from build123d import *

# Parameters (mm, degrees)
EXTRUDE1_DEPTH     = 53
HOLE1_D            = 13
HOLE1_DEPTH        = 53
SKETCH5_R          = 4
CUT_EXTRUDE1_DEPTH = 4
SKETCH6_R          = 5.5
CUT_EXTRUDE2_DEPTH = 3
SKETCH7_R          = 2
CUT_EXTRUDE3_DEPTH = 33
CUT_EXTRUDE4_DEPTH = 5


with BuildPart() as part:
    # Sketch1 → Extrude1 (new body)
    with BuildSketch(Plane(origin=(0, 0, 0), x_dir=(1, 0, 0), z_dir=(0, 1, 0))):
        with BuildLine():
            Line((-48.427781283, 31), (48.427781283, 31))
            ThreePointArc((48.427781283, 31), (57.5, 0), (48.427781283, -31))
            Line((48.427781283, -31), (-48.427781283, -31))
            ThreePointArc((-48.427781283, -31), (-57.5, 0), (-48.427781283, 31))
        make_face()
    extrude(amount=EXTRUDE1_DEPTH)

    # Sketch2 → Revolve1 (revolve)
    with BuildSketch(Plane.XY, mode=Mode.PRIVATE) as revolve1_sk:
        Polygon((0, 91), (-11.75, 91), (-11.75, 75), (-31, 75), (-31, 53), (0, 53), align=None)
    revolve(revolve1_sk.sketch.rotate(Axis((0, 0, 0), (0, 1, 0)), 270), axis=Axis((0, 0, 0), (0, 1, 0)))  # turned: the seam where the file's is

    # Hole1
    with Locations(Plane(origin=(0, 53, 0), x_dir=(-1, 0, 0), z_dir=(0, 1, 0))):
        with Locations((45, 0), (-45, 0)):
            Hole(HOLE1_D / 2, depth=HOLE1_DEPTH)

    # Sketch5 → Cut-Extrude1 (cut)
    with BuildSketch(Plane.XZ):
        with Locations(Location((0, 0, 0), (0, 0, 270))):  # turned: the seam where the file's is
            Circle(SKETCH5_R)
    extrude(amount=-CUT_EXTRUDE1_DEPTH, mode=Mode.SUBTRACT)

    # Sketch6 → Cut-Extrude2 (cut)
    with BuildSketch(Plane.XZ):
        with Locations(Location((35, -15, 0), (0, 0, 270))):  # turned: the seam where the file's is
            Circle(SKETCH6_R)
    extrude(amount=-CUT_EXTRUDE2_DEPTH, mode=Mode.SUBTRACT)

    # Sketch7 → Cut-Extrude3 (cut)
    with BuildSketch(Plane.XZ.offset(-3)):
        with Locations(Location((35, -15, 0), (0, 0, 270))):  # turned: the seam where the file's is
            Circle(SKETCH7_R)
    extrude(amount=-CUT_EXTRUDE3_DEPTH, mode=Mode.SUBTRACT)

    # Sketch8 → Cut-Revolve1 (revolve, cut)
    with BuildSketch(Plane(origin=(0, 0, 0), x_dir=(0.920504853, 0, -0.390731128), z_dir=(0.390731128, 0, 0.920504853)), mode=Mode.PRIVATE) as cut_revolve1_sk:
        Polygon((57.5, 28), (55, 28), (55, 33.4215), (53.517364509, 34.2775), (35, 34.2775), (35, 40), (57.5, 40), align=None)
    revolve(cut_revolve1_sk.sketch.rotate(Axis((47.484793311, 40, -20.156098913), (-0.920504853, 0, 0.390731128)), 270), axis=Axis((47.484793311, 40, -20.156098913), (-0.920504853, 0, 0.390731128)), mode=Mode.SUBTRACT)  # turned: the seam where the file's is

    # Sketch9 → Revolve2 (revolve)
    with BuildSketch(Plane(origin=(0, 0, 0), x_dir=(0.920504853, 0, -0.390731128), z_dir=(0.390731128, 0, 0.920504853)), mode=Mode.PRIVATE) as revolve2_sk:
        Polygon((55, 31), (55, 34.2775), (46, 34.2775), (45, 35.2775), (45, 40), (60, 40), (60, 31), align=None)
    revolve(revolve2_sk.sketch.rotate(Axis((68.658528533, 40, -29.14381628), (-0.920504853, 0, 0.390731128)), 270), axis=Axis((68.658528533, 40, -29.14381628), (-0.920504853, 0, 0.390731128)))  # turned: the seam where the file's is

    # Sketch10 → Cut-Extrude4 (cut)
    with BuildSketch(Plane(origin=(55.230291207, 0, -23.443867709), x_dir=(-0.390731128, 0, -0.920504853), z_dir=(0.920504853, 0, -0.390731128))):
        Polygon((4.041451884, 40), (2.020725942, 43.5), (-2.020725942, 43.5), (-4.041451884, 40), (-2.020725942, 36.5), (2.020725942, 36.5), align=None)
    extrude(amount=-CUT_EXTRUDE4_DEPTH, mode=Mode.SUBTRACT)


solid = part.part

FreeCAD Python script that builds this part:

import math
import FreeCAD as App
import Part
import Sketcher
Q = App.Units.Quantity


def add_polygon(sketch, points):
    """Adds a closed chain of lines whose ends are joined by coincident constraints."""
    first, n = sketch.GeometryCount, len(points)
    for a, b in zip(points, points[1:] + points[:1]):
        sketch.addGeometry(Part.LineSegment(App.Vector(*a, 0), App.Vector(*b, 0)), False)
    for i in range(n):
        sketch.addConstraint(Sketcher.Constraint("Coincident", first + i, 2, first + (i + 1) % n, 1))

doc = App.newDocument("Part")
params = doc.addObject("Spreadsheet::Sheet", "Params")
for row, (alias, value) in enumerate([
    ("sketch1_radius", "57.5 mm"),
    ("pad1_length", "53 mm"),
    ("sketch2_width", "31 mm"),
    ("sketch2_height", "16 mm"),
    ("sketch2_height2", "22 mm"),
    ("sketch2_width2", "11.75 mm"),
    ("revolution_angle", "360 deg"),
    ("sketch3_diameter", "13 mm"),
    ("hole_diameter", "13 mm"),
    ("hole_depth", "53 mm"),
    ("sketch4_diameter", "8 mm"),
    ("pocket1_length", "4 mm"),
    ("sketch5_diameter", "11 mm"),
    ("pocket2_length", "3 mm"),
    ("sketch6_diameter", "4 mm"),
    ("pocket3_length", "33 mm"),
    ("sketch7_height", "12 mm"),
    ("sketch7_width", "2.5 mm"),
    ("sketch7_width2", "22.5 mm"),
    ("groove_angle", "360 deg"),
    ("sketch8_width", "5 mm"),
    ("sketch8_width2", "15 mm"),
    ("sketch8_width3", "9 mm"),
    ("revolution2_angle", "360 deg"),
    ("pocket4_length", "5 mm"),
], start=1):
    params.set(f"A{row}", alias)
    params.set(f"B{row}", "=" + value)
    params.setAlias(f"B{row}", alias)

body = doc.addObject("PartDesign::Body", "Body")

# Sketch on XZ plane
sketch1 = body.newObject("Sketcher::SketchObject", "Sketch")
sketch1.AttachmentSupport = (doc.getObject("XZ_Plane"), [""])
sketch1.MapMode = "FlatFace"
sketch1.addGeometry(Part.LineSegment(App.Vector(48.427781, -31, 0), App.Vector(-48.427781, -31, 0)), False)
sketch1.addGeometry(Part.ArcOfCircle(Part.Circle(App.Vector(0, 0, 0), App.Vector(0, 0, 1), 57.5), math.radians(147.375537), math.radians(212.624463)), False)
sketch1.addGeometry(Part.LineSegment(App.Vector(-48.427781, 31, 0), App.Vector(48.427781, 31, 0)), False)
sketch1.addGeometry(Part.ArcOfCircle(Part.Circle(App.Vector(0, 0, 0), App.Vector(0, 0, 1), 57.5), math.radians(-32.624463), math.radians(32.624463)), False)
sketch1.addConstraint(Sketcher.Constraint("Coincident", 0, 2, 1, 2))
sketch1.addConstraint(Sketcher.Constraint("Coincident", 1, 1, 2, 1))
sketch1.addConstraint(Sketcher.Constraint("Coincident", 2, 2, 3, 2))
sketch1.addConstraint(Sketcher.Constraint("Coincident", 3, 1, 0, 1))
sketch1.addConstraint(Sketcher.Constraint("Horizontal", 0))
sketch1.addConstraint(Sketcher.Constraint("Horizontal", 2))
sketch1.addConstraint(Sketcher.Constraint("Coincident", 1, 3, -1, 1))
sketch1.addConstraint(Sketcher.Constraint("Coincident", 3, 3, -1, 1))
sketch1.addConstraint(Sketcher.Constraint("Equal", 1, 3))
sketch1.addConstraint(Sketcher.Constraint("Vertical", 0, 2, 1, 1))
sketch1.addConstraint(Sketcher.Constraint("Radius", 1, Q("57.5 mm")))
sketch1.addConstraint(Sketcher.Constraint("DistanceY", 0, 2, -1, 1, Q("31 mm")))
sketch1.setExpression("Constraints[10]", "Params.sketch1_radius")
pad1 = body.newObject("PartDesign::Pad", "Pad")
pad1.Profile = sketch1
pad1.setExpression("Length", "Params.pad1_length")
pad1.Reversed = True

# Sketch on XY plane
sketch2 = body.newObject("Sketcher::SketchObject", "Sketch001")
sketch2.AttachmentSupport = (doc.getObject("XY_Plane"), [""])
sketch2.MapMode = "FlatFace"
add_polygon(sketch2, [(0, 91), (-11.75, 91), (-11.75, 75), (-31, 75), (-31, 53), (0, 53)])  # lines 0-5
sketch2.addConstraint(Sketcher.Constraint("Horizontal", 0))
sketch2.addConstraint(Sketcher.Constraint("Vertical", 1))
sketch2.addConstraint(Sketcher.Constraint("Horizontal", 2))
sketch2.addConstraint(Sketcher.Constraint("Vertical", 3))
sketch2.addConstraint(Sketcher.Constraint("Horizontal", 4))
sketch2.addConstraint(Sketcher.Constraint("Vertical", 5))
sketch2.addConstraint(Sketcher.Constraint("PointOnObject", 4, 2, -2))
sketch2.addConstraint(Sketcher.Constraint("DistanceX", 4, 1, 4, 2, Q("31 mm")))
sketch2.addConstraint(Sketcher.Constraint("DistanceY", 1, 2, 1, 1, Q("16 mm")))
sketch2.addConstraint(Sketcher.Constraint("DistanceY", 3, 2, 3, 1, Q("22 mm")))
sketch2.addConstraint(Sketcher.Constraint("DistanceY", -1, 1, 0, 2, Q("91 mm")))
sketch2.addConstraint(Sketcher.Constraint("DistanceX", 0, 2, 0, 1, Q("11.75 mm")))
sketch2.setExpression("Constraints[13]", "Params.sketch2_width")
sketch2.setExpression("Constraints[14]", "Params.sketch2_height")
sketch2.setExpression("Constraints[15]", "Params.sketch2_height2")
sketch2.setExpression("Constraints[17]", "Params.sketch2_width2")
revolution = body.newObject("PartDesign::Revolution", "Revolution")
revolution.Profile = sketch2
revolution.ReferenceAxis = (sketch2, ["V_Axis"])
revolution.setExpression("Angle", "Params.revolution_angle")

# Sketch on XZ plane
sketch3 = body.newObject("Sketcher::SketchObject", "Sketch002")
sketch3.AttachmentSupport = (doc.getObject("XZ_Plane"), [""])
sketch3.MapMode = "FlatFace"
sketch3.AttachmentOffset = App.Placement(App.Vector(0, 0, -53), App.Rotation())
sketch3.addGeometry(Part.Circle(App.Vector(-45, 0, 0), App.Vector(0, 0, 1), 6.5), False)
sketch3.addGeometry(Part.Circle(App.Vector(45, 0, 0), App.Vector(0, 0, 1), 6.5), False)
sketch3.addConstraint(Sketcher.Constraint("Equal", 0, 1))
sketch3.addConstraint(Sketcher.Constraint("Symmetric", 0, 3, 1, 3, -1, 1))
sketch3.addConstraint(Sketcher.Constraint("PointOnObject", 0, 3, -1))
sketch3.addConstraint(Sketcher.Constraint("Diameter", 0, Q("13 mm")))
sketch3.addConstraint(Sketcher.Constraint("DistanceX", 0, 3, -1, 1, Q("45 mm")))
sketch3.setExpression("Constraints[3]", "Params.sketch3_diameter")
doc.recompute()
hole = body.newObject("PartDesign::Hole", "Hole")
hole.Profile = sketch3
hole.ThreadType = "None"
hole.setExpression("Diameter", "Params.hole_diameter")
hole.DepthType = "Dimension"
hole.setExpression("Depth", "Params.hole_depth")
hole.DrillPoint = "Flat"
hole.Reversed = True

# Sketch on XZ plane
sketch4 = body.newObject("Sketcher::SketchObject", "Sketch003")
sketch4.AttachmentSupport = (doc.getObject("XZ_Plane"), [""])
sketch4.MapMode = "FlatFace"
sketch4.addGeometry(Part.Circle(App.Vector(0, 0, 0), App.Vector(0, 0, 1), 4), False)
sketch4.addConstraint(Sketcher.Constraint("Coincident", 0, 3, -1, 1))
sketch4.addConstraint(Sketcher.Constraint("Diameter", 0, Q("8 mm")))
sketch4.setExpression("Constraints[1]", "Params.sketch4_diameter")
pocket1 = body.newObject("PartDesign::Pocket", "Pocket")
pocket1.Profile = sketch4
pocket1.setExpression("Length", "Params.pocket1_length")

# Sketch on XZ plane
sketch5 = body.newObject("Sketcher::SketchObject", "Sketch004")
sketch5.AttachmentSupport = (doc.getObject("XZ_Plane"), [""])
sketch5.MapMode = "FlatFace"
sketch5.addGeometry(Part.Circle(App.Vector(35, -15, 0), App.Vector(0, 0, 1), 5.5), False)
sketch5.addConstraint(Sketcher.Constraint("Diameter", 0, Q("11 mm")))
sketch5.addConstraint(Sketcher.Constraint("DistanceX", -1, 1, 0, 3, Q("35 mm")))
sketch5.addConstraint(Sketcher.Constraint("DistanceY", 0, 3, -1, 1, Q("15 mm")))
sketch5.setExpression("Constraints[0]", "Params.sketch5_diameter")
pocket2 = body.newObject("PartDesign::Pocket", "Pocket001")
pocket2.Profile = sketch5
pocket2.setExpression("Length", "Params.pocket2_length")

# Sketch on XZ plane
sketch6 = body.newObject("Sketcher::SketchObject", "Sketch005")
sketch6.AttachmentSupport = (doc.getObject("XZ_Plane"), [""])
sketch6.MapMode = "FlatFace"
sketch6.AttachmentOffset = App.Placement(App.Vector(0, 0, -3), App.Rotation())
sketch6.addGeometry(Part.Circle(App.Vector(35, -15, 0), App.Vector(0, 0, 1), 2), False)
sketch6.addConstraint(Sketcher.Constraint("Diameter", 0, Q("4 mm")))
sketch6.addConstraint(Sketcher.Constraint("DistanceX", -1, 1, 0, 3, Q("35 mm")))
sketch6.addConstraint(Sketcher.Constraint("DistanceY", 0, 3, -1, 1, Q("15 mm")))
sketch6.setExpression("Constraints[0]", "Params.sketch6_diameter")
pocket3 = body.newObject("PartDesign::Pocket", "Pocket002")
pocket3.Profile = sketch6
pocket3.setExpression("Length", "Params.pocket3_length")

# Sketch on an angled plane
sketch7 = body.newObject("Sketcher::SketchObject", "Sketch006")
sketch7.Placement = App.Placement(App.Vector(0, 0, 0), App.Rotation(App.Vector(0.920504854, 0, -0.390731128), App.Vector(0, 1.000000001, 0), App.Vector(0.390731128, 0, 0.920504854), "ZXY"))
add_polygon(sketch7, [(55, 28), (57.5, 28), (57.5, 40), (35, 40), (35, 34.2775), (53.517365, 34.2775), (55, 33.4215)])  # lines 0-6
sketch7.addGeometry(Part.LineSegment(App.Vector(57.5, 40, 0), App.Vector(35, 40, 0)), True)  # axis
sketch7.addConstraint(Sketcher.Constraint("Horizontal", 0))
sketch7.addConstraint(Sketcher.Constraint("Vertical", 1))
sketch7.addConstraint(Sketcher.Constraint("Horizontal", 2))
sketch7.addConstraint(Sketcher.Constraint("Vertical", 3))
sketch7.addConstraint(Sketcher.Constraint("Horizontal", 4))
sketch7.addConstraint(Sketcher.Constraint("Vertical", 6))
sketch7.addConstraint(Sketcher.Constraint("Horizontal", 7))
sketch7.addConstraint(Sketcher.Constraint("Coincident", 7, 1, 1, 2))
sketch7.addConstraint(Sketcher.Constraint("Vertical", 3, 2, 7, 2))
sketch7.addConstraint(Sketcher.Constraint("DistanceY", 1, 1, 1, 2, Q("12 mm")))
sketch7.addConstraint(Sketcher.Constraint("Angle", 5, Q("-30 deg")))
sketch7.addConstraint(Sketcher.Constraint("DistanceX", 0, 1, 0, 2, Q("2.5 mm")))
sketch7.addConstraint(Sketcher.Constraint("DistanceX", 2, 2, 2, 1, Q("22.5 mm")))
sketch7.addConstraint(Sketcher.Constraint("DistanceY", -1, 1, 0, 2, Q("28 mm")))
sketch7.addConstraint(Sketcher.Constraint("DistanceX", -1, 1, 2, 2, Q("35 mm")))
sketch7.addConstraint(Sketcher.Constraint("Distance", 5, Q("1.712 mm")))
sketch7.addConstraint(Sketcher.Constraint("DistanceY", 3, 2, 3, 1, Q("5.7225 mm")))
sketch7.setExpression("Constraints[16]", "Params.sketch7_height")
sketch7.setExpression("Constraints[18]", "Params.sketch7_width")
sketch7.setExpression("Constraints[19]", "Params.sketch7_width2")
groove = body.newObject("PartDesign::Groove", "Groove")
groove.Profile = sketch7
groove.ReferenceAxis = (sketch7, ["Axis0"])
groove.setExpression("Angle", "Params.groove_angle")

# Sketch on an angled plane
sketch8 = body.newObject("Sketcher::SketchObject", "Sketch007")
sketch8.Placement = App.Placement(App.Vector(0, 0, 0), App.Rotation(App.Vector(0.920504854, 0, -0.390731128), App.Vector(0, 1.000000001, 0), App.Vector(0.390731128, 0, 0.920504854), "ZXY"))
add_polygon(sketch8, [(55, 34.2775), (55, 31), (60, 31), (60, 40), (45, 40), (45, 35.2775), (46, 34.2775)])  # lines 0-6
sketch8.addGeometry(Part.LineSegment(App.Vector(60, 40, 0), App.Vector(45, 40, 0)), True)  # axis
sketch8.addConstraint(Sketcher.Constraint("Vertical", 0))
sketch8.addConstraint(Sketcher.Constraint("Horizontal", 1))
sketch8.addConstraint(Sketcher.Constraint("Vertical", 2))
sketch8.addConstraint(Sketcher.Constraint("Horizontal", 3))
sketch8.addConstraint(Sketcher.Constraint("Vertical", 4))
sketch8.addConstraint(Sketcher.Constraint("Horizontal", 6))
sketch8.addConstraint(Sketcher.Constraint("Horizontal", 7))
sketch8.addConstraint(Sketcher.Constraint("Coincident", 7, 1, 2, 2))
sketch8.addConstraint(Sketcher.Constraint("Vertical", 4, 2, 7, 2))
sketch8.addConstraint(Sketcher.Constraint("Equal", 6, 2))
sketch8.addConstraint(Sketcher.Constraint("DistanceX", 1, 1, 1, 2, Q("5 mm")))
sketch8.addConstraint(Sketcher.Constraint("DistanceX", 3, 2, 3, 1, Q("15 mm")))
sketch8.addConstraint(Sketcher.Constraint("DistanceX", 6, 1, 6, 2, Q("9 mm")))
sketch8.addConstraint(Sketcher.Constraint("Angle", 5, Q("-45 deg")))
sketch8.addConstraint(Sketcher.Constraint("DistanceX", -1, 1, 0, 2, Q("55 mm")))
sketch8.addConstraint(Sketcher.Constraint("DistanceY", -1, 1, 0, 2, Q("31 mm")))
sketch8.addConstraint(Sketcher.Constraint("DistanceY", 0, 2, 0, 1, Q("3.2775 mm")))
sketch8.setExpression("Constraints[17]", "Params.sketch8_width")
sketch8.setExpression("Constraints[18]", "Params.sketch8_width2")
sketch8.setExpression("Constraints[19]", "Params.sketch8_width3")
revolution2 = body.newObject("PartDesign::Revolution", "Revolution001")
revolution2.Profile = sketch8
revolution2.ReferenceAxis = (sketch8, ["Axis0"])
revolution2.setExpression("Angle", "Params.revolution2_angle")

# Sketch on an angled plane
sketch9 = body.newObject("Sketcher::SketchObject", "Sketch008")
sketch9.Placement = App.Placement(App.Vector(55.230291, 0, -23.443868), App.Rotation(App.Vector(-0.390731128, 0, -0.920504854), App.Vector(0, 1.000000001, 0), App.Vector(0.920504854, 0, -0.390731128), "ZXY"))
add_polygon(sketch9, [(4.041452, 40), (2.020726, 43.5), (-2.020726, 43.5), (-4.041452, 40), (-2.020726, 36.5), (2.020726, 36.5)])  # lines 0-5
sketch9.addConstraint(Sketcher.Constraint("Horizontal", 1))
sketch9.addConstraint(Sketcher.Constraint("Horizontal", 4))
sketch9.addConstraint(Sketcher.Constraint("Symmetric", 2, 2, 5, 2, -2))
sketch9.addConstraint(Sketcher.Constraint("Parallel", 0, 3))
sketch9.addConstraint(Sketcher.Constraint("Parallel", 2, 5))
sketch9.addConstraint(Sketcher.Constraint("Vertical", 1, 2, 3, 2))
sketch9.addConstraint(Sketcher.Constraint("Vertical", 0, 2, 4, 2))
sketch9.addConstraint(Sketcher.Constraint("Angle", 0, Q("120 deg")))
sketch9.addConstraint(Sketcher.Constraint("DistanceY", -1, 1, 2, 2, Q("40 mm")))
sketch9.addConstraint(Sketcher.Constraint("DistanceY", 3, 2, 1, 2, Q("7 mm")))
sketch9.addConstraint(Sketcher.Constraint("DistanceX", 1, 2, 1, 1, Q("4.041452 mm")))
pocket4 = body.newObject("PartDesign::Pocket", "Pocket003")
pocket4.Profile = sketch9
pocket4.setExpression("Length", "Params.pocket4_length")

doc.recompute()
